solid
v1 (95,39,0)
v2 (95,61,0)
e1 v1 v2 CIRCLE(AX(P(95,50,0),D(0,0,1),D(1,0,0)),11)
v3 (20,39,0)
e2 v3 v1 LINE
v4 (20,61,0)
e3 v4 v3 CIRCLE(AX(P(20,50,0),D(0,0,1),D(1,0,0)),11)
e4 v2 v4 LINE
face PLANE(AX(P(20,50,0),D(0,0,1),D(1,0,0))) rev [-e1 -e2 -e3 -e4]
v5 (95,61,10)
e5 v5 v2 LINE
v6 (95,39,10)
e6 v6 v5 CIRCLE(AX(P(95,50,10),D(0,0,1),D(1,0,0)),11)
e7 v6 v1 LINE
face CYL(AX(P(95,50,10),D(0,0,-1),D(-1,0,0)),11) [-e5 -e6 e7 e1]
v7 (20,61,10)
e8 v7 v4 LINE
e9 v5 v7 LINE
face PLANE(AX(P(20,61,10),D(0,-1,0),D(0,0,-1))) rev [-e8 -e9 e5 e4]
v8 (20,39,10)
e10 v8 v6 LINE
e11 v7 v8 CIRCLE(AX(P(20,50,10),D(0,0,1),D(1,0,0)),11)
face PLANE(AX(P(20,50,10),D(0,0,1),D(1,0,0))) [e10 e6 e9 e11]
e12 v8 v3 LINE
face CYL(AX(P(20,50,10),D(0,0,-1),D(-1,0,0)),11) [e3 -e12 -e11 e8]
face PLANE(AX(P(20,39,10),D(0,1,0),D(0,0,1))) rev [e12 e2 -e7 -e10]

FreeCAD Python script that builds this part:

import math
import FreeCAD as App
import Part
import Sketcher
from FreeCAD import Vector

doc = App.newDocument("Part")
body = doc.addObject("PartDesign::Body", "Body")

sketch1 = doc.addObject("Sketcher::SketchObject", "Sketch")
body.addObject(sketch1)
sketch1.AttachmentSupport = (doc.XY_Plane, [""])
sketch1.MapMode = "FlatFace"
sketch1.addGeometry([
    Part.LineSegment(Vector(95, 61, 0), Vector(20, 61, 0)),
    Part.ArcOfCircle(Part.Circle(Vector(20, 50, 0), Vector(0, 0, 1), 11), math.radians(90), math.radians(270)),
    Part.LineSegment(Vector(20, 39, 0), Vector(95, 39, 0)),
    Part.ArcOfCircle(Part.Circle(Vector(95, 50, 0), Vector(0, 0, 1), 11), math.radians(-90), math.radians(90)),
], False)
sketch1.addConstraint([
    Sketcher.Constraint("Tangent", 0, 2, 1, 1),
    Sketcher.Constraint("Tangent", 1, 2, 2, 1),
    Sketcher.Constraint("Tangent", 2, 2, 3, 1),
    Sketcher.Constraint("Tangent", 3, 2, 0, 1),
    Sketcher.Constraint("Horizontal", 0),
    Sketcher.Constraint("Horizontal", 2),
    Sketcher.Constraint("Radius", 1, 11.0),
    Sketcher.Constraint("DistanceX", 0, 2, 0, 1, 75.0),
    Sketcher.Constraint("DistanceX", -1, 1, 1, 3, 20.0),
    Sketcher.Constraint("DistanceY", -1, 1, 1, 3, 50.0),
])
pad1 = doc.addObject("PartDesign::Pad", "Pad")
body.addObject(pad1)
pad1.Profile = sketch1
pad1.Length = 10

doc.recompute()
